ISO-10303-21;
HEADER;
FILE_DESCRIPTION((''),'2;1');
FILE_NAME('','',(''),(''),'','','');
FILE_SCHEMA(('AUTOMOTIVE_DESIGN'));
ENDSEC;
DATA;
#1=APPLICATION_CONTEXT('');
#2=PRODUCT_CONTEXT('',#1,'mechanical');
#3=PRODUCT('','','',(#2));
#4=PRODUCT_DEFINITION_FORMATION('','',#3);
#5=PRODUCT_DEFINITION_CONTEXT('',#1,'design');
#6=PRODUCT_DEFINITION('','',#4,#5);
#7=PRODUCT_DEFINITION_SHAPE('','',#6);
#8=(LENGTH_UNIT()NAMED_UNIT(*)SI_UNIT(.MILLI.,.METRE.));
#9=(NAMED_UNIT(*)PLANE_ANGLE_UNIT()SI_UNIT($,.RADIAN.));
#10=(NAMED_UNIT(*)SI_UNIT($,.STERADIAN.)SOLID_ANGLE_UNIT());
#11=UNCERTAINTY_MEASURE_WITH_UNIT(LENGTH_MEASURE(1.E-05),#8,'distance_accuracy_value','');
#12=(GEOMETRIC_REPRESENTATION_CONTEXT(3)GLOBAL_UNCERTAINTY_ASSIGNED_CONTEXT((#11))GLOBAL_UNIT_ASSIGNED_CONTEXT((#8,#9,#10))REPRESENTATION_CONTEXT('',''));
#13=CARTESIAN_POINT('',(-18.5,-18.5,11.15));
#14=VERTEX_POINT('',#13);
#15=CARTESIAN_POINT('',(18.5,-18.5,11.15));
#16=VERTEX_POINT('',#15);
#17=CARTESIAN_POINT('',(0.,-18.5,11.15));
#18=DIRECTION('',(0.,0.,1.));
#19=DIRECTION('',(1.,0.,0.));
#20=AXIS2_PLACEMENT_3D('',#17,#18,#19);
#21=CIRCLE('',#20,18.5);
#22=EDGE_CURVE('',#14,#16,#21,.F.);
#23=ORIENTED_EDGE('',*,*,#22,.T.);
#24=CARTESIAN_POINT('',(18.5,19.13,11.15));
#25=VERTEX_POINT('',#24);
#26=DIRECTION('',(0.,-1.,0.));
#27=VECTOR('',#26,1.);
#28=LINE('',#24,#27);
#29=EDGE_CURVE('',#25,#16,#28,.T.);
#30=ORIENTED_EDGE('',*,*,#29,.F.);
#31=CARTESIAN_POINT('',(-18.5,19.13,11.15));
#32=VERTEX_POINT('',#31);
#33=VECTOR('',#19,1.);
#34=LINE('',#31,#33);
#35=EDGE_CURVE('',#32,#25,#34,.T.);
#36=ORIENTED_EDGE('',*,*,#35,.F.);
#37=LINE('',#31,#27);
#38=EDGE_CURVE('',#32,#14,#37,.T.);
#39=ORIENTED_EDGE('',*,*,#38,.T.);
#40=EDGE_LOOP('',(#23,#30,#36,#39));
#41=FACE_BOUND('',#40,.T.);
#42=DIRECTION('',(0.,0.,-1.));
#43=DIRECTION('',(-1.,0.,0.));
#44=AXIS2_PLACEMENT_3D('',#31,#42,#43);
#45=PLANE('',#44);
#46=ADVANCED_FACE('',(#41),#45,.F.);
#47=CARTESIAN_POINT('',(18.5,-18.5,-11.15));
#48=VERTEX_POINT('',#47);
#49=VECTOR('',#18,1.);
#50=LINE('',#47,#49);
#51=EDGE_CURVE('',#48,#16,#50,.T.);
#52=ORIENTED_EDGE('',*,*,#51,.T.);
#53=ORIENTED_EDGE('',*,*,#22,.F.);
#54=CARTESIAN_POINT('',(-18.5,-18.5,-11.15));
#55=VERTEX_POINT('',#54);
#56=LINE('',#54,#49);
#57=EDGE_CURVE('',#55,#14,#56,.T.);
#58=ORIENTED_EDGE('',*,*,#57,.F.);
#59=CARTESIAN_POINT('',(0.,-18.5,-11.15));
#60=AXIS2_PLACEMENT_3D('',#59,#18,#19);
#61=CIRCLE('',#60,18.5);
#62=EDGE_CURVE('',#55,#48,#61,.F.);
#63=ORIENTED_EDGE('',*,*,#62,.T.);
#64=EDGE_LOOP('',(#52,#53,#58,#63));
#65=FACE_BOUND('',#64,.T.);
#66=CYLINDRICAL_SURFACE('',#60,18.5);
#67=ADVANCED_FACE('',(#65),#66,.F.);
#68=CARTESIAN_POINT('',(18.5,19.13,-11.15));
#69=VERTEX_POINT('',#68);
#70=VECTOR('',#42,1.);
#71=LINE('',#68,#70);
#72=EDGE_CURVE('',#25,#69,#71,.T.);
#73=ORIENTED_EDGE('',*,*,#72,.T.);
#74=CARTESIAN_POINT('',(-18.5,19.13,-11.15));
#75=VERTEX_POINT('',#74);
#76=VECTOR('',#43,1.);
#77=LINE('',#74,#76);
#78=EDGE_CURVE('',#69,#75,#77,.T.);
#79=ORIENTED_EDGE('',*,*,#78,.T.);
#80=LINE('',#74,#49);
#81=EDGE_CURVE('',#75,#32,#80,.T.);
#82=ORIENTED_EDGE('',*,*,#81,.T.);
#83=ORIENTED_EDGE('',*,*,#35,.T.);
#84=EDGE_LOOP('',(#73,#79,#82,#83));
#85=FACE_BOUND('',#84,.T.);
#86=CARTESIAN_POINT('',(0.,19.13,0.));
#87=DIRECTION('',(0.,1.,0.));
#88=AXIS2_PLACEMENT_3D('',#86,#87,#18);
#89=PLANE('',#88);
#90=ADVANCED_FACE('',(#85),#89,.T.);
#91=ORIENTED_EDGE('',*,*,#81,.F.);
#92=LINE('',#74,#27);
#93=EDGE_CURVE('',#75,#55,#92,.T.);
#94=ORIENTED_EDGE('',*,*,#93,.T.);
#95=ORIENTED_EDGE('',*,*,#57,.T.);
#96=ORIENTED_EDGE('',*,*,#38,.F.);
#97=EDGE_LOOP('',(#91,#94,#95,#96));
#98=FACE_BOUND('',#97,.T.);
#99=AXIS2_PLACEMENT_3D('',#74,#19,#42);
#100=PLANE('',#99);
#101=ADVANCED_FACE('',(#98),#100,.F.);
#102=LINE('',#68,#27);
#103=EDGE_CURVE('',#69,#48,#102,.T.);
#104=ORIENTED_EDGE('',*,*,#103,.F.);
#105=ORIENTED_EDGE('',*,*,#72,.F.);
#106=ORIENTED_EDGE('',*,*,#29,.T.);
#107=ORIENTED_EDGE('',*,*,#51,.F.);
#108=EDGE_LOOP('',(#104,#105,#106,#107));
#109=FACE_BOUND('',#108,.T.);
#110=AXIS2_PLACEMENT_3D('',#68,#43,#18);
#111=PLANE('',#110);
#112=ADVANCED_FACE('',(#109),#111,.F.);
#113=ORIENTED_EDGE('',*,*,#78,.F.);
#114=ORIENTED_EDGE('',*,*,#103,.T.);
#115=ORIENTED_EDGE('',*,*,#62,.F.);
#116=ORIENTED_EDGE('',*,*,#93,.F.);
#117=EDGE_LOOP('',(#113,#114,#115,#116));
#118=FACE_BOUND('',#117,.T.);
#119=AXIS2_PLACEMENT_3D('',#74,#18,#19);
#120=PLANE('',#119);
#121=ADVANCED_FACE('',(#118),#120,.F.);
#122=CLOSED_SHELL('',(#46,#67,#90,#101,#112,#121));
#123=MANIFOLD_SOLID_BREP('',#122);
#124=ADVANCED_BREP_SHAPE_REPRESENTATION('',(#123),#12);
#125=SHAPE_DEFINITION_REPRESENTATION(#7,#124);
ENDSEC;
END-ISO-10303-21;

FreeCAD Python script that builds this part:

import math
import FreeCAD as App
import Part
import Sketcher


def add_polygon(sketch, points):
    """Adds a closed chain of lines whose ends are joined by coincident constraints."""
    first, n = sketch.GeometryCount, len(points)
    for a, b in zip(points, points[1:] + points[:1]):
        sketch.addGeometry(Part.LineSegment(App.Vector(*a, 0), App.Vector(*b, 0)), False)
    for i in range(n):
        sketch.addConstraint(Sketcher.Constraint("Coincident", first + i, 2, first + (i + 1) % n, 1))

doc = App.newDocument("Part")
body = doc.addObject("PartDesign::Body", "Body")

# Sketch on XZ plane
sketch1 = doc.addObject("Sketcher::SketchObject", "Sketch")
body.addObject(sketch1)
sketch1.AttachmentSupport = (doc.XZ_Plane, [""])
sketch1.MapMode = "FlatFace"
add_polygon(sketch1, [(-18, -11), (-18, 11), (18, 11), (18, -11)])  # lines 0-3
sketch1.addConstraint(Sketcher.Constraint("Vertical", 0))
sketch1.addConstraint(Sketcher.Constraint("Horizontal", 1))
sketch1.addConstraint(Sketcher.Constraint("Vertical", 2))
sketch1.addConstraint(Sketcher.Constraint("Horizontal", 3))
sketch1.addConstraint(Sketcher.Constraint("Symmetric", 0, 2, 2, 2, -1, 1))
sketch1.addConstraint(Sketcher.Constraint("DistanceX", 1, 1, 1, 2, 37.0))
sketch1.addConstraint(Sketcher.Constraint("DistanceY", 0, 1, 0, 2, 22.3))
pad1 = doc.addObject("PartDesign::Pad", "Pad")
body.addObject(pad1)
pad1.Profile = sketch1
pad1.Length = 19.13
pad1.Reversed = True

# Sketch on XY plane
sketch2 = doc.addObject("Sketcher::SketchObject", "Sketch001")
body.addObject(sketch2)
sketch2.AttachmentSupport = (doc.XY_Plane, [""])
sketch2.MapMode = "FlatFace"
sketch2.AttachmentOffset = App.Placement(App.Vector(0, 0, 11.15), App.Rotation())
sketch2.addGeometry(Part.LineSegment(App.Vector(0, 0, 0), App.Vector(-18, 0, 0)), False)
sketch2.addGeometry(Part.LineSegment(App.Vector(-18, 0, 0), App.Vector(-18, -18, 0)), False)
sketch2.addGeometry(Part.ArcOfCircle(Part.Circle(App.Vector(0, -18, 0), App.Vector(0, 0, 1), 18), math.radians(90), math.radians(180)), False)
sketch2.addGeometry(Part.LineSegment(App.Vector(18, 0, 0), App.Vector(0, 0, 0)), False)
sketch2.addGeometry(Part.ArcOfCircle(Part.Circle(App.Vector(0, -18, 0), App.Vector(0, 0, 1), 18), math.radians(0), math.radians(90)), False)
sketch2.addGeometry(Part.LineSegment(App.Vector(18, -18, 0), App.Vector(18, 0, 0)), False)
sketch2.addConstraint(Sketcher.Constraint("Coincident", 0, 2, 1, 1))
sketch2.addConstraint(Sketcher.Constraint("Tangent", 1, 2, 2, 2))
sketch2.addConstraint(Sketcher.Constraint("Tangent", 2, 1, 0, 1))
sketch2.addConstraint(Sketcher.Constraint("Tangent", 3, 2, 4, 2))
sketch2.addConstraint(Sketcher.Constraint("Tangent", 4, 1, 5, 1))
sketch2.addConstraint(Sketcher.Constraint("Coincident", 5, 2, 3, 1))
sketch2.addConstraint(Sketcher.Constraint("Horizontal", 0))
sketch2.addConstraint(Sketcher.Constraint("Vertical", 1))
sketch2.addConstraint(Sketcher.Constraint("Horizontal", 3))
sketch2.addConstraint(Sketcher.Constraint("Vertical", 5))
sketch2.addConstraint(Sketcher.Constraint("Coincident", 2, 1, -1, 1))
sketch2.addConstraint(Sketcher.Constraint("Coincident", 3, 2, -1, 1))
sketch2.addConstraint(Sketcher.Constraint("Equal", 2, 4))
sketch2.addConstraint(Sketcher.Constraint("Radius", 2, 18.5))
pad2 = doc.addObject("PartDesign::Pad", "Pad001")
body.addObject(pad2)
pad2.Profile = sketch2
pad2.Length = 22.3
pad2.Reversed = True

doc.recompute()
